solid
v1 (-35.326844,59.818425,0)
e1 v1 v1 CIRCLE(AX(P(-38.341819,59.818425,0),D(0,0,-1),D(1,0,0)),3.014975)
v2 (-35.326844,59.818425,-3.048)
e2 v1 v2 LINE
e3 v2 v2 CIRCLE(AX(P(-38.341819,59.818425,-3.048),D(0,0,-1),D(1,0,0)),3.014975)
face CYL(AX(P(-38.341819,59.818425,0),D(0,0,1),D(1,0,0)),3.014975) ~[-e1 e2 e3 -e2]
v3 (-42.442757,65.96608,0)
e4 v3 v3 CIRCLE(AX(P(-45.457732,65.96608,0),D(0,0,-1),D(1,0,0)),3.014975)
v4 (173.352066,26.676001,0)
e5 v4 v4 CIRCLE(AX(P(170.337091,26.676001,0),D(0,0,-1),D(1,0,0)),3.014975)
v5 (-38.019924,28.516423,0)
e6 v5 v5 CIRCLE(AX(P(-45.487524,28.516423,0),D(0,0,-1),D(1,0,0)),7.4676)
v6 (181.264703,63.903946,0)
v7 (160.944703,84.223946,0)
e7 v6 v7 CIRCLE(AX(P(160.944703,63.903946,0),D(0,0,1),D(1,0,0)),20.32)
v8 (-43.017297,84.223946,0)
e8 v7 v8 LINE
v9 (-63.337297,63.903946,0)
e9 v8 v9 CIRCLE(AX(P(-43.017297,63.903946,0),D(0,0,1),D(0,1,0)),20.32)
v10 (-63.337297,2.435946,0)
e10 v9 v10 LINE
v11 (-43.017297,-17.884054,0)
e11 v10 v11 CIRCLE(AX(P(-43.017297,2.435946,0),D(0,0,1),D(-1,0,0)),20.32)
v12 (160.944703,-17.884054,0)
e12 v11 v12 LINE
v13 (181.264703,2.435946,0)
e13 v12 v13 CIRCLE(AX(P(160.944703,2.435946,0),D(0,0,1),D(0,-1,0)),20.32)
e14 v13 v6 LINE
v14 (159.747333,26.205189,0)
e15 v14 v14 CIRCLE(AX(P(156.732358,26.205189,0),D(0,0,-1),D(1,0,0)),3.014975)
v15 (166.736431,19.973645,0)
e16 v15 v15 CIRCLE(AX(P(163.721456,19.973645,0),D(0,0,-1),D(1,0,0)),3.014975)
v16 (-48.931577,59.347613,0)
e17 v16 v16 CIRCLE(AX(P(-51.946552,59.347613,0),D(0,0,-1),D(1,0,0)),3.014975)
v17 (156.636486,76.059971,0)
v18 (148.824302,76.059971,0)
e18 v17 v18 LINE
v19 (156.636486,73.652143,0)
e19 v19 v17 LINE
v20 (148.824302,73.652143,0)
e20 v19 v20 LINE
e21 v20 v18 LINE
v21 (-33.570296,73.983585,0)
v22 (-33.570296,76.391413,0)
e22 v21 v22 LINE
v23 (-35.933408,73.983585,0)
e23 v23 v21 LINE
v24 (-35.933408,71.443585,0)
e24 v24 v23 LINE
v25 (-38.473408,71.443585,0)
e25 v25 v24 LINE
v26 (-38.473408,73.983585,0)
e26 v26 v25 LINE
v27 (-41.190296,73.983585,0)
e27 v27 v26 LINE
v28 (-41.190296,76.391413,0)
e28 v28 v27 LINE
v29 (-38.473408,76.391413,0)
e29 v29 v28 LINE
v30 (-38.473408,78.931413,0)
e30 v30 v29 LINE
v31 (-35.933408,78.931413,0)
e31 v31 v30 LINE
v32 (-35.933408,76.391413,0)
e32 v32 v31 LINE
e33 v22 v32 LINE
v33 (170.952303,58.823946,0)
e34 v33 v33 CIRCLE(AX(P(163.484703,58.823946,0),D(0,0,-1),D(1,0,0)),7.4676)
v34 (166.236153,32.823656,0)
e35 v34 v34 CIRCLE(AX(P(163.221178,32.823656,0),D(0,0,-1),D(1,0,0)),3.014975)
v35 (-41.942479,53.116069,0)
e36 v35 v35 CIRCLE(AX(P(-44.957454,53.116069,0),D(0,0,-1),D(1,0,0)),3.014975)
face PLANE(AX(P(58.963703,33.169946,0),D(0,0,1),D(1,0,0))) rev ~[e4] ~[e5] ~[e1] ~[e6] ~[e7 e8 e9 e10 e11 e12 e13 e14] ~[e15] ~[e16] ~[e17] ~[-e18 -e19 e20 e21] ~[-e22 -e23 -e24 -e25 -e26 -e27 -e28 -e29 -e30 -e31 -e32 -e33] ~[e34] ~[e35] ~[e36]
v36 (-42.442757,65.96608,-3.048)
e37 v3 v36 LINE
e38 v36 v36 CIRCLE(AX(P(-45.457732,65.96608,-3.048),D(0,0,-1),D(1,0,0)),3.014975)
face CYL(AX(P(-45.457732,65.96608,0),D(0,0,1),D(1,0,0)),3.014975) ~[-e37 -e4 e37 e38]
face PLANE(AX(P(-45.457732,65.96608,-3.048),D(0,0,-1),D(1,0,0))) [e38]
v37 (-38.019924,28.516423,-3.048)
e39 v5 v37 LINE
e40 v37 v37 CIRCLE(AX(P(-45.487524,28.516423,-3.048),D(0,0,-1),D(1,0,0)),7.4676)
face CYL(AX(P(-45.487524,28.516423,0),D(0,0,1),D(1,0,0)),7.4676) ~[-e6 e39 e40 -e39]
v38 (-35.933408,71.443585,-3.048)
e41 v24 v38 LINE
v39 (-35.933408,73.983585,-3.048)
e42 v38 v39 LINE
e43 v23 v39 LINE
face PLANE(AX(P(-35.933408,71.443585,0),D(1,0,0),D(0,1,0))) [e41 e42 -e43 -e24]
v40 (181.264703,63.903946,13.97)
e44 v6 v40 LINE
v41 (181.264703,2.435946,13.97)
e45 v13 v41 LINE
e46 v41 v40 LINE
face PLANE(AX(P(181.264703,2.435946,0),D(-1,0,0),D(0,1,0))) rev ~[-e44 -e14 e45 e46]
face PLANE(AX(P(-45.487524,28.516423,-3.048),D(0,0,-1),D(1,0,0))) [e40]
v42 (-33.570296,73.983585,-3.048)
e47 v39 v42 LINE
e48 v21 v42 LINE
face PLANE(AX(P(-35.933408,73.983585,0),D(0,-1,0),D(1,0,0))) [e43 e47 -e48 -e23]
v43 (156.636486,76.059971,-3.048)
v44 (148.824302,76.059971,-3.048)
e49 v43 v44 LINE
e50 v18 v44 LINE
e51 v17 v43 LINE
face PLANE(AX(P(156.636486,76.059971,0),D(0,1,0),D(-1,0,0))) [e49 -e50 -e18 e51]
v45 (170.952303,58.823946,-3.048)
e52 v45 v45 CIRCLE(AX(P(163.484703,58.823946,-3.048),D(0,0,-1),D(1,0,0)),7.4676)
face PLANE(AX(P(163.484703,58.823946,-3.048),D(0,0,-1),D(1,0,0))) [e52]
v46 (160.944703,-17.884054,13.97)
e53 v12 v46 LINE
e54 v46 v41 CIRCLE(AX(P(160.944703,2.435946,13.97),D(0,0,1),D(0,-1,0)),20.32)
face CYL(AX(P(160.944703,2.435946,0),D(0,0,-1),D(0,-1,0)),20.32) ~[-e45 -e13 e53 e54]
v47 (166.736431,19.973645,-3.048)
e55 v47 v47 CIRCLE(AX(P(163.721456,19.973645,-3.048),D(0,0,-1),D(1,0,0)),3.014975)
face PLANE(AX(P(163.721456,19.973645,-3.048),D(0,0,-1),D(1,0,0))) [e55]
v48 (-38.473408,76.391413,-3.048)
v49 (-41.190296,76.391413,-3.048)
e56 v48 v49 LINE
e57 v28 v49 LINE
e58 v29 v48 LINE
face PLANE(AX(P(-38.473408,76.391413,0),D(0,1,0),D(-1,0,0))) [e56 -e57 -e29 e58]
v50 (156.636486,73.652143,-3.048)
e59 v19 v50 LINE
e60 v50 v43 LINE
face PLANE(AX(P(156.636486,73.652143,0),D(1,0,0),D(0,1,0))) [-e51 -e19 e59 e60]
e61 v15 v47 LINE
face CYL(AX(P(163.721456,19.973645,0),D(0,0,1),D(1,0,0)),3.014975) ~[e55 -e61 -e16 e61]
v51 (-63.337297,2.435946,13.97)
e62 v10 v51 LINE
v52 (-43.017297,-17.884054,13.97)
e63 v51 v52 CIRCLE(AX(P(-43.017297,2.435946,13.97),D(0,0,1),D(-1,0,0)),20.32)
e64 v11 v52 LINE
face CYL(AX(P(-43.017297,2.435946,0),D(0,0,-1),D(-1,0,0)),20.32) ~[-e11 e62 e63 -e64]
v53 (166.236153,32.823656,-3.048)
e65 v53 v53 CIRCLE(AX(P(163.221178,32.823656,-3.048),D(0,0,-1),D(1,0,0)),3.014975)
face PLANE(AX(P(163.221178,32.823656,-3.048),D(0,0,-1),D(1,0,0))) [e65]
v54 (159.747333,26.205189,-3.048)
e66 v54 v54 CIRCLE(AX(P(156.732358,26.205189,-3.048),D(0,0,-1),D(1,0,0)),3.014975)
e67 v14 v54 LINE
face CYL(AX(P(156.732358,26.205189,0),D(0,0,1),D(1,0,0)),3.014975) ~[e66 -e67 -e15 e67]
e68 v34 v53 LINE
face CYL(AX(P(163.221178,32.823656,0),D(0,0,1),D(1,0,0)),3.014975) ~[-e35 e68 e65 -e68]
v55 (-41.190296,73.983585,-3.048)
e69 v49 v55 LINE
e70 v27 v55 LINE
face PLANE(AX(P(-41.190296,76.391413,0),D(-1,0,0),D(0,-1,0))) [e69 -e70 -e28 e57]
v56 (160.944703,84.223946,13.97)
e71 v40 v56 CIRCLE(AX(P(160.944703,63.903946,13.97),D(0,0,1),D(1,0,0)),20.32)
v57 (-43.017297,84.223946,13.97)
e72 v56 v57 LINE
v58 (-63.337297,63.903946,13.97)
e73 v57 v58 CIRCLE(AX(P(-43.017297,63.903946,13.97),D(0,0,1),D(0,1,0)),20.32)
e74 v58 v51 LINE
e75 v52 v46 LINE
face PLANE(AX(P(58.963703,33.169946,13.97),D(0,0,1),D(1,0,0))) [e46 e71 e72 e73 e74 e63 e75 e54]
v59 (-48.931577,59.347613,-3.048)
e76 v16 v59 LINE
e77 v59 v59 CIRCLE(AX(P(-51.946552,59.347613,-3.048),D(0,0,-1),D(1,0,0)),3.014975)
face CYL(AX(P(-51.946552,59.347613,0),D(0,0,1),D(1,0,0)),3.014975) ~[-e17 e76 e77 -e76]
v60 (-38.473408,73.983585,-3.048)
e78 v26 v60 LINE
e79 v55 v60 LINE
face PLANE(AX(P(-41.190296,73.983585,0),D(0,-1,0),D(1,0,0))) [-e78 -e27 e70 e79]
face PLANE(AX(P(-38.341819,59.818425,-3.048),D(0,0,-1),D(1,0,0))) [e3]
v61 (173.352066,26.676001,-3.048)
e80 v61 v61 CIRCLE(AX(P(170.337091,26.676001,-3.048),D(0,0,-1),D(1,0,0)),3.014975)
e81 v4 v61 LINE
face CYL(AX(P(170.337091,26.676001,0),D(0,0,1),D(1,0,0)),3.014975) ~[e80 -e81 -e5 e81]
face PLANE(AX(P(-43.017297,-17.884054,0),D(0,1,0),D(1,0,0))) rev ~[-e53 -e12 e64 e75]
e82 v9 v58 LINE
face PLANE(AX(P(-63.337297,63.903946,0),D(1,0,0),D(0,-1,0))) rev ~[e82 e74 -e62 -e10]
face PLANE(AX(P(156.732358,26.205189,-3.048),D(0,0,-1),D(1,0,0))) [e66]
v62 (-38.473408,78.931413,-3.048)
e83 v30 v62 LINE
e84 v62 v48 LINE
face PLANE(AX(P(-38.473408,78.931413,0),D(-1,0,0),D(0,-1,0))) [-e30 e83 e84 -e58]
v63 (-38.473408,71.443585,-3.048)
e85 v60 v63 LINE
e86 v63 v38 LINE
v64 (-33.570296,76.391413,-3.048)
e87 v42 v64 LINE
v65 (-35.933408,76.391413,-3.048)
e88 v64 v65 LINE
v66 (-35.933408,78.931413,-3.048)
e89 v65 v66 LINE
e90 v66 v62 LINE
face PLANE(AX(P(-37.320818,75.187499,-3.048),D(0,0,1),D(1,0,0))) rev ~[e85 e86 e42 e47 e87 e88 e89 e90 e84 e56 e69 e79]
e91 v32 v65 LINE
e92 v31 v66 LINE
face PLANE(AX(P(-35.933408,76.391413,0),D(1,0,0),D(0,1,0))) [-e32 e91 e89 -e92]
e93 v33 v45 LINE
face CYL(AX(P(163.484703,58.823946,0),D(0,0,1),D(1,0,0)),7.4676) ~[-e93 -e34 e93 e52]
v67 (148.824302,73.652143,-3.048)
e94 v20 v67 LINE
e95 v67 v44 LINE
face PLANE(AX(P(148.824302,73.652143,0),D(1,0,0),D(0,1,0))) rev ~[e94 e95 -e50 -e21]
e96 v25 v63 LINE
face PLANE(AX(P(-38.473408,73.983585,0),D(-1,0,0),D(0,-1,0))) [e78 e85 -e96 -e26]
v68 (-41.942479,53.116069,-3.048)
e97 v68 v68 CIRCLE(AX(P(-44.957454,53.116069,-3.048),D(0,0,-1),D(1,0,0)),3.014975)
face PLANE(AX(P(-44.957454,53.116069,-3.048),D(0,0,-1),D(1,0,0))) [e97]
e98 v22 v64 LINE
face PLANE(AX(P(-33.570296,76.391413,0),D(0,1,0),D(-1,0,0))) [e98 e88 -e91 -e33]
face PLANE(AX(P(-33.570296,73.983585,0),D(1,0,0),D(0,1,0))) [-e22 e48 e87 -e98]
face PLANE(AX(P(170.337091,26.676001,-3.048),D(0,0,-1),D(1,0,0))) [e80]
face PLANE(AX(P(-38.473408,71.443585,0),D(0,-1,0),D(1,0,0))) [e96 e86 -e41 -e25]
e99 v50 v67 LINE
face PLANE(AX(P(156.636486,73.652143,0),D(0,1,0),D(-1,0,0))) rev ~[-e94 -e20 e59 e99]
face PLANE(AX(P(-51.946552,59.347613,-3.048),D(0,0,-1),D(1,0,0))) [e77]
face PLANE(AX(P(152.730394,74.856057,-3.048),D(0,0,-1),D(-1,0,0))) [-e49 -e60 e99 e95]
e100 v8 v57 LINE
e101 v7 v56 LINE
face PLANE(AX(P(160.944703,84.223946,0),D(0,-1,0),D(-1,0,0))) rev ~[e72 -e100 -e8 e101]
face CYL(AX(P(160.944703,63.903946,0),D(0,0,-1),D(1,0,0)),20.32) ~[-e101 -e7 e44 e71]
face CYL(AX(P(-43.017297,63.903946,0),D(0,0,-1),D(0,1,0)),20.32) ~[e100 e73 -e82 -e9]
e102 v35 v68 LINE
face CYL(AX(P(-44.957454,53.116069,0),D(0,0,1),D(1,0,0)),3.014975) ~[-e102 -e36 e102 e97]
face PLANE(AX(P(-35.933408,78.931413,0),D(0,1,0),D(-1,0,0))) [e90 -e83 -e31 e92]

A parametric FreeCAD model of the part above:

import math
import FreeCAD as App
import Part
import Sketcher
Q = App.Units.Quantity

doc = App.newDocument("Part")
body = doc.addObject("PartDesign::Body", "Body")

sketch1 = body.newObject("Sketcher::SketchObject", "Sketch")
sketch1.AttachmentSupport = (doc.getObject("XY_Plane"), [""])
sketch1.MapMode = "FlatFace"
sketch1.addGeometry(Part.ArcOfCircle(Part.Circle(App.Vector(-43, 64, 0), App.Vector(0, 0, 1), 20), math.radians(90), math.radians(180)), False)
sketch1.addGeometry(Part.LineSegment(App.Vector(-63, 64, 0), App.Vector(-63, 2, 0)), False)
sketch1.addGeometry(Part.ArcOfCircle(Part.Circle(App.Vector(-43, 2, 0), App.Vector(0, 0, 1), 20), math.radians(180), math.radians(270)), False)
sketch1.addGeometry(Part.LineSegment(App.Vector(-43, -18, 0), App.Vector(161, -18, 0)), False)
sketch1.addGeometry(Part.ArcOfCircle(Part.Circle(App.Vector(161, 2, 0), App.Vector(0, 0, 1), 20), math.radians(-90), math.radians(0)), False)
sketch1.addGeometry(Part.LineSegment(App.Vector(181, 2, 0), App.Vector(181, 64, 0)), False)
sketch1.addGeometry(Part.ArcOfCircle(Part.Circle(App.Vector(161, 64, 0), App.Vector(0, 0, 1), 20), math.radians(0), math.radians(90)), False)
sketch1.addGeometry(Part.LineSegment(App.Vector(161, 84, 0), App.Vector(-43, 84, 0)), False)
sketch1.addConstraint(Sketcher.Constraint("Tangent", 0, 2, 1, 1))
sketch1.addConstraint(Sketcher.Constraint("Tangent", 1, 2, 2, 1))
sketch1.addConstraint(Sketcher.Constraint("Tangent", 2, 2, 3, 1))
sketch1.addConstraint(Sketcher.Constraint("Tangent", 3, 2, 4, 1))
sketch1.addConstraint(Sketcher.Constraint("Tangent", 4, 2, 5, 1))
sketch1.addConstraint(Sketcher.Constraint("Tangent", 5, 2, 6, 1))
sketch1.addConstraint(Sketcher.Constraint("Tangent", 6, 2, 7, 1))
sketch1.addConstraint(Sketcher.Constraint("Tangent", 7, 2, 0, 1))
sketch1.addConstraint(Sketcher.Constraint("Vertical", 1))
sketch1.addConstraint(Sketcher.Constraint("Horizontal", 3))
sketch1.addConstraint(Sketcher.Constraint("Vertical", 5))
sketch1.addConstraint(Sketcher.Constraint("Horizontal", 7))
sketch1.addConstraint(Sketcher.Constraint("Equal", 0, 2))
sketch1.addConstraint(Sketcher.Constraint("Equal", 2, 4))
sketch1.addConstraint(Sketcher.Constraint("Equal", 4, 6))
sketch1.addConstraint(Sketcher.Constraint("Radius", 0, Q("0.8 in")))
sketch1.addConstraint(Sketcher.Constraint("DistanceX", 3, 1, 3, 2, Q("8.03 in")))
sketch1.addConstraint(Sketcher.Constraint("DistanceY", 1, 2, 1, 1, Q("2.42 in")))
sketch1.addConstraint(Sketcher.Constraint("DistanceX", 0, 3, -1, 1, 43.017297))
sketch1.addConstraint(Sketcher.Constraint("DistanceY", -1, 1, 0, 3, 63.903946))
pad1 = body.newObject("PartDesign::Pad", "Pad")
pad1.Profile = sketch1
pad1.Length = Q("0.55 in")

sketch2 = body.newObject("Sketcher::SketchObject", "Sketch001")
sketch2.AttachmentSupport = (doc.getObject("XY_Plane"), [""])
sketch2.MapMode = "FlatFace"
sketch2.addGeometry(Part.Circle(App.Vector(163.5, 58.8, 0), App.Vector(0, 0, 1), 7.5), False)
sketch2.addGeometry(Part.Circle(App.Vector(170.3, 26.7, 0), App.Vector(0, 0, 1), 3), False)
sketch2.addGeometry(Part.Circle(App.Vector(163.2, 32.8, 0), App.Vector(0, 0, 1), 3), False)
sketch2.addGeometry(Part.Circle(App.Vector(156.7, 26.2, 0), App.Vector(0, 0, 1), 3), False)
sketch2.addGeometry(Part.Circle(App.Vector(163.7, 20, 0), App.Vector(0, 0, 1), 3), False)
sketch2.addGeometry(Part.LineSegment(App.Vector(156.6, 76.1, 0), App.Vector(156.6, 73.7, 0)), False)
sketch2.addGeometry(Part.LineSegment(App.Vector(156.6, 73.7, 0), App.Vector(148.8, 73.7, 0)), False)
sketch2.addGeometry(Part.LineSegment(App.Vector(148.8, 73.7, 0), App.Vector(148.8, 76.1, 0)), False)
sketch2.addGeometry(Part.LineSegment(App.Vector(148.8, 76.1, 0), App.Vector(156.6, 76.1, 0)), False)
sketch2.addConstraint(Sketcher.Constraint("Coincident", 5, 2, 6, 1))
sketch2.addConstraint(Sketcher.Constraint("Coincident", 6, 2, 7, 1))
sketch2.addConstraint(Sketcher.Constraint("Coincident", 7, 2, 8, 1))
sketch2.addConstraint(Sketcher.Constraint("Coincident", 8, 2, 5, 1))
sketch2.addConstraint(Sketcher.Constraint("Vertical", 5))
sketch2.addConstraint(Sketcher.Constraint("Horizontal", 6))
sketch2.addConstraint(Sketcher.Constraint("Vertical", 7))
sketch2.addConstraint(Sketcher.Constraint("Horizontal", 8))
sketch2.addConstraint(Sketcher.Constraint("Equal", 1, 2))
sketch2.addConstraint(Sketcher.Constraint("Equal", 2, 3))
sketch2.addConstraint(Sketcher.Constraint("Equal", 3, 4))
sketch2.addConstraint(Sketcher.Constraint("Diameter", 0, Q("0.588 in")))
sketch2.addConstraint(Sketcher.Constraint("Diameter", 1, 6.02995))
sketch2.addConstraint(Sketcher.Constraint("DistanceY", -1, 1, 1, 3, 26.676001))
sketch2.addConstraint(Sketcher.Constraint("DistanceX", -1, 1, 6, 2, 148.824302))
sketch2.addConstraint(Sketcher.Constraint("DistanceY", 4, 3, 0, 3, 38.850302))
sketch2.addConstraint(Sketcher.Constraint("DistanceY", 4, 3, 5, 2, 53.678498))
sketch2.addConstraint(Sketcher.Constraint("DistanceX", 6, 2, 0, 3, 14.660401))
sketch2.addConstraint(Sketcher.Constraint("DistanceX", 6, 2, 6, 1, 7.812184))
sketch2.addConstraint(Sketcher.Constraint("DistanceY", 5, 2, 5, 1, 2.407828))
sketch2.addConstraint(Sketcher.Constraint("DistanceX", -1, 1, 1, 3, 170.337091))
sketch2.addConstraint(Sketcher.Constraint("DistanceX", -1, 1, 3, 3, 156.732358))
sketch2.addConstraint(Sketcher.Constraint("DistanceY", -1, 1, 3, 3, 26.205189))
sketch2.addConstraint(Sketcher.Constraint("DistanceY", -1, 1, 7, 2, 76.059971))
sketch2.addConstraint(Sketcher.Constraint("DistanceY", 2, 3, 0, 3, 26.00029))
sketch2.addConstraint(Sketcher.Constraint("DistanceX", 3, 3, 2, 3, 6.48882))
sketch2.addConstraint(Sketcher.Constraint("DistanceX", 5, 2, 4, 3, 7.08497))
pad2 = body.newObject("PartDesign::Pad", "Pad001")
pad2.Profile = sketch2
pad2.Length = Q("0.12 in")
pad2.Reversed = True

sketch3 = body.newObject("Sketcher::SketchObject", "Sketch002")
sketch3.AttachmentSupport = (doc.getObject("XY_Plane"), [""])
sketch3.MapMode = "FlatFace"
sketch3.addGeometry(Part.Circle(App.Vector(-45.5, 28.5, 0), App.Vector(0, 0, 1), 7.5), False)
sketch3.addGeometry(Part.Circle(App.Vector(-45, 53.1, 0), App.Vector(0, 0, 1), 3), False)
sketch3.addGeometry(Part.Circle(App.Vector(-38.3, 59.8, 0), App.Vector(0, 0, 1), 3), False)
sketch3.addGeometry(Part.Circle(App.Vector(-45.5, 66, 0), App.Vector(0, 0, 1), 3), False)
sketch3.addGeometry(Part.Circle(App.Vector(-51.9, 59.3, 0), App.Vector(0, 0, 1), 3), False)
sketch3.addGeometry(Part.LineSegment(App.Vector(-41.2, 76.4, 0), App.Vector(-38.5, 76.4, 0)), False)
sketch3.addGeometry(Part.LineSegment(App.Vector(-38.5, 76.4, 0), App.Vector(-38.5, 78.9, 0)), False)
sketch3.addGeometry(Part.LineSegment(App.Vector(-38.5, 78.9, 0), App.Vector(-35.9, 78.9, 0)), False)
sketch3.addGeometry(Part.LineSegment(App.Vector(-35.9, 78.9, 0), App.Vector(-35.9, 76.4, 0)), False)
sketch3.addGeometry(Part.LineSegment(App.Vector(-35.9, 76.4, 0), App.Vector(-33.6, 76.4, 0)), False)
sketch3.addGeometry(Part.LineSegment(App.Vector(-33.6, 76.4, 0), App.Vector(-33.6, 74, 0)), False)
sketch3.addGeometry(Part.LineSegment(App.Vector(-33.6, 74, 0), App.Vector(-35.9, 74, 0)), False)
sketch3.addGeometry(Part.LineSegment(App.Vector(-35.9, 74, 0), App.Vector(-35.9, 71.4, 0)), False)
sketch3.addGeometry(Part.LineSegment(App.Vector(-35.9, 71.4, 0), App.Vector(-38.5, 71.4, 0)), False)
sketch3.addGeometry(Part.LineSegment(App.Vector(-38.5, 71.4, 0), App.Vector(-38.5, 74, 0)), False)
sketch3.addGeometry(Part.LineSegment(App.Vector(-38.5, 74, 0), App.Vector(-41.2, 74, 0)), False)
sketch3.addGeometry(Part.LineSegment(App.Vector(-41.2, 74, 0), App.Vector(-41.2, 76.4, 0)), False)
sketch3.addConstraint(Sketcher.Constraint("Coincident", 5, 2, 6, 1))
sketch3.addConstraint(Sketcher.Constraint("Coincident", 6, 2, 7, 1))
sketch3.addConstraint(Sketcher.Constraint("Coincident", 7, 2, 8, 1))
sketch3.addConstraint(Sketcher.Constraint("Coincident", 8, 2, 9, 1))
sketch3.addConstraint(Sketcher.Constraint("Coincident", 9, 2, 10, 1))
sketch3.addConstraint(Sketcher.Constraint("Coincident", 10, 2, 11, 1))
sketch3.addConstraint(Sketcher.Constraint("Coincident", 11, 2, 12, 1))
sketch3.addConstraint(Sketcher.Constraint("Coincident", 12, 2, 13, 1))
sketch3.addConstraint(Sketcher.Constraint("Coincident", 13, 2, 14, 1))
sketch3.addConstraint(Sketcher.Constraint("Coincident", 14, 2, 15, 1))
sketch3.addConstraint(Sketcher.Constraint("Coincident", 15, 2, 16, 1))
sketch3.addConstraint(Sketcher.Constraint("Coincident", 16, 2, 5, 1))
sketch3.addConstraint(Sketcher.Constraint("Horizontal", 5))
sketch3.addConstraint(Sketcher.Constraint("Vertical", 6))
sketch3.addConstraint(Sketcher.Constraint("Horizontal", 7))
sketch3.addConstraint(Sketcher.Constraint("Vertical", 8))
sketch3.addConstraint(Sketcher.Constraint("Horizontal", 9))
sketch3.addConstraint(Sketcher.Constraint("Vertical", 10))
sketch3.addConstraint(Sketcher.Constraint("Horizontal", 11))
sketch3.addConstraint(Sketcher.Constraint("Vertical", 12))
sketch3.addConstraint(Sketcher.Constraint("Horizontal", 13))
sketch3.addConstraint(Sketcher.Constraint("Vertical", 14))
sketch3.addConstraint(Sketcher.Constraint("Horizontal", 15))
sketch3.addConstraint(Sketcher.Constraint("Vertical", 16))
sketch3.addConstraint(Sketcher.Constraint("Equal", 1, 2))
sketch3.addConstraint(Sketcher.Constraint("Equal", 2, 3))
sketch3.addConstraint(Sketcher.Constraint("Equal", 3, 4))
sketch3.addConstraint(Sketcher.Constraint("Horizontal", 5, 2, 8, 2))
sketch3.addConstraint(Sketcher.Constraint("Horizontal", 11, 2, 14, 2))
sketch3.addConstraint(Sketcher.Constraint("Vertical", 8, 2, 11, 2))
sketch3.addConstraint(Sketcher.Constraint("Vertical", 6, 2, 13, 2))
sketch3.addConstraint(Sketcher.Constraint("Equal", 13, 6))
sketch3.addConstraint(Sketcher.Constraint("Equal", 8, 12))
sketch3.addConstraint(Sketcher.Constraint("Diameter", 0, Q("0.588 in")))
sketch3.addConstraint(Sketcher.Constraint("DistanceX", 7, 1, 7, 2, Q("0.1 in")))
sketch3.addConstraint(Sketcher.Constraint("Diameter", 1, 6.02995))
sketch3.addConstraint(Sketcher.Constraint("DistanceY", 0, 3, 2, 3, 31.302002))
sketch3.addConstraint(Sketcher.Constraint("DistanceY", 4, 3, 5, 2, 17.0438))
sketch3.addConstraint(Sketcher.Constraint("DistanceX", 5, 1, 5, 2, 2.716888))
sketch3.addConstraint(Sketcher.Constraint("DistanceX", 9, 1, 9, 2, 2.363112))
sketch3.addConstraint(Sketcher.Constraint("DistanceY", 10, 2, 10, 1, 2.407828))
sketch3.addConstraint(Sketcher.Constraint("DistanceY", -1, 1, 1, 3, 53.116069))
sketch3.addConstraint(Sketcher.Constraint("DistanceX", 2, 3, -1, 1, 38.341819))
sketch3.addConstraint(Sketcher.Constraint("DistanceY", -1, 1, 3, 3, 65.96608))
sketch3.addConstraint(Sketcher.Constraint("DistanceX", 4, 3, -1, 1, 51.946552))
sketch3.addConstraint(Sketcher.Constraint("DistanceX", 5, 2, -1, 1, 38.473408))
sketch3.addConstraint(Sketcher.Constraint("DistanceX", 0, 3, 1, 3, 0.530069))
sketch3.addConstraint(Sketcher.Constraint("DistanceX", 0, 3, 3, 3, 0.029792))
sketch3.addConstraint(Sketcher.Constraint("DistanceX", 4, 3, 3, 3, 6.48882))
sketch3.addConstraint(Sketcher.Constraint("DistanceY", 0, 3, 4, 3, 30.83119))
sketch3.addConstraint(Sketcher.Constraint("DistanceY", -1, 1, 0, 3, 28.516423))
pad3 = body.newObject("PartDesign::Pad", "Pad002")
pad3.Profile = sketch3
pad3.Length = Q("0.12 in")
pad3.Reversed = True

doc.recompute()
